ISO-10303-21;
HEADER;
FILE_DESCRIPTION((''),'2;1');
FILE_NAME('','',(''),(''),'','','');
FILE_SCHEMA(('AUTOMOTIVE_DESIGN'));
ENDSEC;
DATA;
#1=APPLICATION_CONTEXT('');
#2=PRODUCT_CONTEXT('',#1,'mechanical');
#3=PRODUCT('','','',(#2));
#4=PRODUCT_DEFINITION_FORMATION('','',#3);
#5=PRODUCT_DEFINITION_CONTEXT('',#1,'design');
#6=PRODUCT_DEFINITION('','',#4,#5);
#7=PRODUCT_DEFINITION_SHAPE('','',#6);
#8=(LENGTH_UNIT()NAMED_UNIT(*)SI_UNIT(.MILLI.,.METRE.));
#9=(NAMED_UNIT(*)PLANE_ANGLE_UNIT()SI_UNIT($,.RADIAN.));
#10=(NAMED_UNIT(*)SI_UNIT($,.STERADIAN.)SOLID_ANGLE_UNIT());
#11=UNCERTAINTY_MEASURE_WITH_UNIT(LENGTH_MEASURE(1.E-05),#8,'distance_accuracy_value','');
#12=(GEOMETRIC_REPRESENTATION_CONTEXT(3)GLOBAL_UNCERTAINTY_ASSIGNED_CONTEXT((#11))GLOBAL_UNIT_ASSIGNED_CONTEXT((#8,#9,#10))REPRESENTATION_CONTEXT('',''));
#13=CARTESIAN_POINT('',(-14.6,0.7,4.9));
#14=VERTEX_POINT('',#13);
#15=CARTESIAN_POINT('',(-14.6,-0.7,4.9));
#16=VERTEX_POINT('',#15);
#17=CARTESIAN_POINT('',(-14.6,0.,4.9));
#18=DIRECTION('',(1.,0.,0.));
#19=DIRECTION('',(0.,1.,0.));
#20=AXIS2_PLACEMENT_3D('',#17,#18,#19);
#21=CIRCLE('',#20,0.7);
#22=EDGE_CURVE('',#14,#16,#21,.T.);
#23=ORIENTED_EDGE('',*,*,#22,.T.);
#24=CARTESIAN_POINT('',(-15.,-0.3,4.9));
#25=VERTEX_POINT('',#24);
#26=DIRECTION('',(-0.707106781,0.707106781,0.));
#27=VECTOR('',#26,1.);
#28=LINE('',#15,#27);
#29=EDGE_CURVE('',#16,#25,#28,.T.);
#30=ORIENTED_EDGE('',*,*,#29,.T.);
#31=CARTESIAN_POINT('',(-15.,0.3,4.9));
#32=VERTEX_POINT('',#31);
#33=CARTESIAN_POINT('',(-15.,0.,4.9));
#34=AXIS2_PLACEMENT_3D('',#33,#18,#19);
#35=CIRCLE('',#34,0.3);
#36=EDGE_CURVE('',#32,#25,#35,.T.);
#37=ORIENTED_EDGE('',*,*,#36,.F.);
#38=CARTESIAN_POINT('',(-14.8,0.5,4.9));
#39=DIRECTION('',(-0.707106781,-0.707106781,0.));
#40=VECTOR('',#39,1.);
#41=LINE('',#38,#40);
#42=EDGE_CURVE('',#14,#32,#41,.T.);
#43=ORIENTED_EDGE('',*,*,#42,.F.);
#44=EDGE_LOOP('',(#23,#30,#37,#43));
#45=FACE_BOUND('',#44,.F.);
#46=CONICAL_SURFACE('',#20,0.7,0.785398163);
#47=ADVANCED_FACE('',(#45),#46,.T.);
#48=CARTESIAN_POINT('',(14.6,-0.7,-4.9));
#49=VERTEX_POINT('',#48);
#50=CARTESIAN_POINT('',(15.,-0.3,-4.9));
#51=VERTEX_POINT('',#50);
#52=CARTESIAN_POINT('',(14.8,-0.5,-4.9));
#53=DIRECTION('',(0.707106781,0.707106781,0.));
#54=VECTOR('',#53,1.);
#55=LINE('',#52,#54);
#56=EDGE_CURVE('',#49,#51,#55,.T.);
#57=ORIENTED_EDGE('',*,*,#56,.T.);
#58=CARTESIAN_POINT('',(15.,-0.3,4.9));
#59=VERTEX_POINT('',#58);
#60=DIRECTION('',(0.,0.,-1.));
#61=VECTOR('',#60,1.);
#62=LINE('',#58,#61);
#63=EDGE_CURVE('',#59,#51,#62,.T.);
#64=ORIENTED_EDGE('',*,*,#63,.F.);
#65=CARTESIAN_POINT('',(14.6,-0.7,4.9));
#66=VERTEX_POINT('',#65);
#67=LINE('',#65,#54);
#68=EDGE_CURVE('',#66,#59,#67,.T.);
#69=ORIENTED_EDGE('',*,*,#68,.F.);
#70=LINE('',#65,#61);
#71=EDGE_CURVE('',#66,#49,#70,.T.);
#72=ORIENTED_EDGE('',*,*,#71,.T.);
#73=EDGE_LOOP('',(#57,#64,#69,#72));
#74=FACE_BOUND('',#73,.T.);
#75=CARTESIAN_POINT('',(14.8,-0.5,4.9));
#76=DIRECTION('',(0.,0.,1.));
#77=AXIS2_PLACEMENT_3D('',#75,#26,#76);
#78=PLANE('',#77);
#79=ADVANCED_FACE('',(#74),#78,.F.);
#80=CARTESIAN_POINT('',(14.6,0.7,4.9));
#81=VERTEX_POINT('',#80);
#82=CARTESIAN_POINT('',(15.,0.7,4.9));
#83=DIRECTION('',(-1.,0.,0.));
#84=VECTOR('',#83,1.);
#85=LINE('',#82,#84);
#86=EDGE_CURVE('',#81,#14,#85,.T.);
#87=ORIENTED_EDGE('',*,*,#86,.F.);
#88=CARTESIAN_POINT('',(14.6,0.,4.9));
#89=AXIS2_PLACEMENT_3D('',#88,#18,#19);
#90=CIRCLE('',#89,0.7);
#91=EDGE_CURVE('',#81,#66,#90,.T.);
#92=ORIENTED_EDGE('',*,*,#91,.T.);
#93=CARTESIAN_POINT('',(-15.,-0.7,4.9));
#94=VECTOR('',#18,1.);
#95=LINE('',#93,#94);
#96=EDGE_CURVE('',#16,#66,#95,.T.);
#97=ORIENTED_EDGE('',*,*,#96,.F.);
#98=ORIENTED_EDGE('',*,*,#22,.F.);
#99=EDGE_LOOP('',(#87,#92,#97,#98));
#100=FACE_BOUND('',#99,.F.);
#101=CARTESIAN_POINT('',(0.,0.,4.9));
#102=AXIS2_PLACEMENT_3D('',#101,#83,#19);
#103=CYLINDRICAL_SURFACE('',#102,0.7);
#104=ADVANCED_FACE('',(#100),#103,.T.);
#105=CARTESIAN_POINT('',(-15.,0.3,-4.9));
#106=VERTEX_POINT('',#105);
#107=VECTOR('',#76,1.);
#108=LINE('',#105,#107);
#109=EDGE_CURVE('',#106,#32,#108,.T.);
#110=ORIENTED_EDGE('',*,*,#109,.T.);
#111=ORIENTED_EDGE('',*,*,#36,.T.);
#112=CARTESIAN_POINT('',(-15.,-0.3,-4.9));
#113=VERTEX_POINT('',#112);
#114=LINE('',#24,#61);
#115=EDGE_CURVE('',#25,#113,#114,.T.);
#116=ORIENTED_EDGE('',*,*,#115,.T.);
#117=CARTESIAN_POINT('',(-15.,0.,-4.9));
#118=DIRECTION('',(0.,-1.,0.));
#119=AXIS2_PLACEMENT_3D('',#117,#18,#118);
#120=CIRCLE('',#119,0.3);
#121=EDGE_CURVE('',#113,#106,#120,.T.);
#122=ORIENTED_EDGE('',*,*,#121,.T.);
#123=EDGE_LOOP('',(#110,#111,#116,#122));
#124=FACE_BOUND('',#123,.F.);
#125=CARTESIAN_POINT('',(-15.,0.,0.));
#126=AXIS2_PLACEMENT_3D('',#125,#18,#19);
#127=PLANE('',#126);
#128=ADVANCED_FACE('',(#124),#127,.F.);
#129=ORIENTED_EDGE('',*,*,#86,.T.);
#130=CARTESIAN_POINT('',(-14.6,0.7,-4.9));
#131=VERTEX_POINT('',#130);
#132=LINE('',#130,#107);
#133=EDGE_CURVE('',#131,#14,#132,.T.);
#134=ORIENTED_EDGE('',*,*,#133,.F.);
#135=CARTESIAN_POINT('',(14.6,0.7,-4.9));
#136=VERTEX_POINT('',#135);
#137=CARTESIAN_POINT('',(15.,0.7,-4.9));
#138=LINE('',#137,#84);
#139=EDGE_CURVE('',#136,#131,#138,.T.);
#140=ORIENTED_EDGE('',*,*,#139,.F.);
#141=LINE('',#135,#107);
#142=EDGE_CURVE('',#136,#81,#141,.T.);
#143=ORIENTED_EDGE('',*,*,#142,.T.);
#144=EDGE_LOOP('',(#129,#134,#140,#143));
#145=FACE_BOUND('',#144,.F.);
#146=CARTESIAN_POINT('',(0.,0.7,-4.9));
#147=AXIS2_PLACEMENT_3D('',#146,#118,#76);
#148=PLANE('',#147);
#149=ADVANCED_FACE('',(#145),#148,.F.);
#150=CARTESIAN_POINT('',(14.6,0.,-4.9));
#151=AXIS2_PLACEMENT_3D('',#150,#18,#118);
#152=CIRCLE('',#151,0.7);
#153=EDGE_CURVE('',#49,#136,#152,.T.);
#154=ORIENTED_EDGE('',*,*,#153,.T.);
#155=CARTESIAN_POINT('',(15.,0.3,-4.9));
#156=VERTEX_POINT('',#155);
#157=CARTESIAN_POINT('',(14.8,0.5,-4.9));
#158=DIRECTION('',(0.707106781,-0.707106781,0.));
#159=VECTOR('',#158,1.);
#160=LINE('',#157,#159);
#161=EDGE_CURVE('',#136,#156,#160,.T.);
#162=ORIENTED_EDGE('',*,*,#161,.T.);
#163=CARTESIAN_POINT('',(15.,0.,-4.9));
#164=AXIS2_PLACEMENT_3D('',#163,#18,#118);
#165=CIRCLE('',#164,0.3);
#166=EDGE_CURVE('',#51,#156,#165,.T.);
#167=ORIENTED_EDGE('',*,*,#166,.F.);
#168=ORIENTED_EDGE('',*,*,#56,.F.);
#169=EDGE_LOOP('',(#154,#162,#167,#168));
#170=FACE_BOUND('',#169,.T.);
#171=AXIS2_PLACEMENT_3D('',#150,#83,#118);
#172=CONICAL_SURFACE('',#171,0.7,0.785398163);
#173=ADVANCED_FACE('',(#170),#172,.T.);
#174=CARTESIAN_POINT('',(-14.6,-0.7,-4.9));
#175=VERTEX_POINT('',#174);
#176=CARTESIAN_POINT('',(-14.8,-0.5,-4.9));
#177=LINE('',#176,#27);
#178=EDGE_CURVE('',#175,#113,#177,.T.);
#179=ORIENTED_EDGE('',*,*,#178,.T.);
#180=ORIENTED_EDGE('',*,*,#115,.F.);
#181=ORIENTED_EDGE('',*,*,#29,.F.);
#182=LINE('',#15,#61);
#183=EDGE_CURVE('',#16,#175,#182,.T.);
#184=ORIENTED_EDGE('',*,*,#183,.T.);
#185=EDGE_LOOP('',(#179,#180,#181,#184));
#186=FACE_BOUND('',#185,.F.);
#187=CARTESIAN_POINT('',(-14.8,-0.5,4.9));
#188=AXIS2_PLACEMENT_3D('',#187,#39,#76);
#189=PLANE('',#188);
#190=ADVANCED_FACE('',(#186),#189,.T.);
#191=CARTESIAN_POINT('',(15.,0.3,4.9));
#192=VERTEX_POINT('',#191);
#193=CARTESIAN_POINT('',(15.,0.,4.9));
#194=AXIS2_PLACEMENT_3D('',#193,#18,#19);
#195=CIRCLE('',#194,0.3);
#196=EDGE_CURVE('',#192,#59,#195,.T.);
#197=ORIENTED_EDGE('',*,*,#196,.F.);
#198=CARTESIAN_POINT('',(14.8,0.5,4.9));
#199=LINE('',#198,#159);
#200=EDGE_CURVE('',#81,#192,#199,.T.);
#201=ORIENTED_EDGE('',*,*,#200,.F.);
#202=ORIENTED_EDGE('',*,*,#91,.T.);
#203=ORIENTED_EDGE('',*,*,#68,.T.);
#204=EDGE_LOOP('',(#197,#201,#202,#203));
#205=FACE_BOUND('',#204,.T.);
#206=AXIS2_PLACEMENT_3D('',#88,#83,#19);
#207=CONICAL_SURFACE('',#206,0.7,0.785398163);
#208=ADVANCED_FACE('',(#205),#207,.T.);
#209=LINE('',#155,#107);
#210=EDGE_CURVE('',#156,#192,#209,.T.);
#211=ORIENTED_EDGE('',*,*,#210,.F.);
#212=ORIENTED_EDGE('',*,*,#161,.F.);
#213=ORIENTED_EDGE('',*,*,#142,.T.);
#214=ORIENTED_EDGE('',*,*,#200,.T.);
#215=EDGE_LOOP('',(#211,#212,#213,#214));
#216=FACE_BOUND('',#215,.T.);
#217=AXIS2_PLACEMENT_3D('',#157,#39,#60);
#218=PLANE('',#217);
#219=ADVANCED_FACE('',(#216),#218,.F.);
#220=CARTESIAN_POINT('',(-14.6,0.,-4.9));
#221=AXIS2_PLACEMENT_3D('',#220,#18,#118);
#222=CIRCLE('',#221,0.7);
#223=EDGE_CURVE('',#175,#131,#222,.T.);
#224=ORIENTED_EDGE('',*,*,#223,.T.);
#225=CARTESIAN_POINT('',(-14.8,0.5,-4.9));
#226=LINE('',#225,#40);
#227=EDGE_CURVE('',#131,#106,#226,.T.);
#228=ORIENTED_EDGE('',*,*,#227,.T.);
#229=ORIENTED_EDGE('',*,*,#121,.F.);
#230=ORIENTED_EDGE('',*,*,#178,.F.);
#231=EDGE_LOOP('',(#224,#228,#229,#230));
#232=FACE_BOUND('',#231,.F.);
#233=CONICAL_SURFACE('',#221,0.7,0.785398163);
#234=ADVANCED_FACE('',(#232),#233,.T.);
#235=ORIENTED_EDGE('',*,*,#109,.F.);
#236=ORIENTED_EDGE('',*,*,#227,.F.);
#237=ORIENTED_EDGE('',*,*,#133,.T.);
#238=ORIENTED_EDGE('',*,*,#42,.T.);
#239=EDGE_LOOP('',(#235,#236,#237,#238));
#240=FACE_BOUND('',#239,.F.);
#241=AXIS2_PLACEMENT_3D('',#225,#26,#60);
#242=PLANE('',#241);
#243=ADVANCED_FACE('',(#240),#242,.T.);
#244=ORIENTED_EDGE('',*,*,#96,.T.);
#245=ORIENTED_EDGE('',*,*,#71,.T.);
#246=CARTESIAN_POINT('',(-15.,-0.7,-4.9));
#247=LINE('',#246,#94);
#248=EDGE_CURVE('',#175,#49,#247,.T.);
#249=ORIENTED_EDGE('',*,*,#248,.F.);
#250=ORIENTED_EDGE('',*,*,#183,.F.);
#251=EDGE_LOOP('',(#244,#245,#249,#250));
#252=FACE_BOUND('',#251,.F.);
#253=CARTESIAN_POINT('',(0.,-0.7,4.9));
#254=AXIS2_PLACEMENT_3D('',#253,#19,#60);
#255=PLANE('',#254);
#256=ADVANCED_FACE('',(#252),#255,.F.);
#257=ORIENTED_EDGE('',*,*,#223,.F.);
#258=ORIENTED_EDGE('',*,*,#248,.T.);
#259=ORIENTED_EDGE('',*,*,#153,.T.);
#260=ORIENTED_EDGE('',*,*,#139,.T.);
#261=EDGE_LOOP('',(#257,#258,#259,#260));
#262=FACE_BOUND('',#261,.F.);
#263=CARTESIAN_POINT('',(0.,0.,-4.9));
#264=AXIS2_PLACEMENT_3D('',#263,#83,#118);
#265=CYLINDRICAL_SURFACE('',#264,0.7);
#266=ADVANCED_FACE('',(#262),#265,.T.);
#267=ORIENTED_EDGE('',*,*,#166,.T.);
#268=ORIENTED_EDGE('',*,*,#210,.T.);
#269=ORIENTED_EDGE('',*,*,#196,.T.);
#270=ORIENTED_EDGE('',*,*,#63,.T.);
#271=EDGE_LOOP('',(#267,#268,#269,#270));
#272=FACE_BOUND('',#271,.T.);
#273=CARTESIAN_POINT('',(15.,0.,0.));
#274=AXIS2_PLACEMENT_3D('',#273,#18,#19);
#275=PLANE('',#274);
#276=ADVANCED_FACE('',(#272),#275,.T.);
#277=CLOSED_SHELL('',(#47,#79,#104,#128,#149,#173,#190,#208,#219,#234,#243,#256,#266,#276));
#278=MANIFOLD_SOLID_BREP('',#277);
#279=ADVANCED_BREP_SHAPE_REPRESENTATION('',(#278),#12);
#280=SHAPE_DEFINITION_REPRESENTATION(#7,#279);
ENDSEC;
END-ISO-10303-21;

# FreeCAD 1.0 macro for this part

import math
import FreeCAD as App
import Part
import Sketcher
Q = App.Units.Quantity


def edges_at(feature, points):
    """Names of the edges that pass closest to the given points."""
    edges = feature.Shape.Edges
    near = lambda p: min(range(len(edges)), key=lambda i: edges[i].distToShape(Part.Vertex(*p))[0])
    return sorted({f"Edge{near(p) + 1}" for p in points})

doc = App.newDocument("Part")
body = doc.addObject("PartDesign::Body", "Body")

# Sketch on YZ plane
sketch1 = body.newObject("Sketcher::SketchObject", "Sketch")
sketch1.AttachmentSupport = (doc.getObject("YZ_Plane"), [""])
sketch1.MapMode = "FlatFace"
sketch1.addGeometry(Part.ArcOfCircle(Part.Circle(App.Vector(0, 4.9, 0), App.Vector(0, 0, 1), 0.7), math.radians(0), math.radians(180)), False)
sketch1.addGeometry(Part.LineSegment(App.Vector(-0.7, 4.9, 0), App.Vector(-0.7, -4.9, 0)), False)
sketch1.addGeometry(Part.ArcOfCircle(Part.Circle(App.Vector(0, -4.9, 0), App.Vector(0, 0, 1), 0.7), math.radians(180), math.radians(360)), False)
sketch1.addGeometry(Part.LineSegment(App.Vector(0.7, -4.9, 0), App.Vector(0.7, 4.9, 0)), False)
sketch1.addConstraint(Sketcher.Constraint("Tangent", 0, 2, 1, 1))
sketch1.addConstraint(Sketcher.Constraint("Tangent", 1, 2, 2, 1))
sketch1.addConstraint(Sketcher.Constraint("Tangent", 2, 2, 3, 1))
sketch1.addConstraint(Sketcher.Constraint("Tangent", 3, 2, 0, 1))
sketch1.addConstraint(Sketcher.Constraint("Vertical", 1))
sketch1.addConstraint(Sketcher.Constraint("Vertical", 3))
sketch1.addConstraint(Sketcher.Constraint("Symmetric", 0, 3, 2, 3, -1, 1))
sketch1.addConstraint(Sketcher.Constraint("Radius", 0, Q("0.7 mm")))
sketch1.addConstraint(Sketcher.Constraint("DistanceY", -1, 1, 0, 3, Q("4.9 mm")))
pad1 = body.newObject("PartDesign::Pad", "Pad")
pad1.Profile = sketch1
pad1.Length = 30
pad1.Midplane = True
doc.recompute()

chamfer = body.newObject("PartDesign::Chamfer", "Chamfer")
chamfer.Base = (pad1, edges_at(pad1, [
    (-15, 0.7, 0),
    (-15, 0, -5.6),
    (-15, -0.7, 0),
    (-15, 0, 5.6),
    (15, 0.7, 0),
    (15, 0, 5.6),
    (15, -0.7, 0),
    (15, 0, -5.6),
]))
chamfer.Size = 0.4

doc.recompute()
